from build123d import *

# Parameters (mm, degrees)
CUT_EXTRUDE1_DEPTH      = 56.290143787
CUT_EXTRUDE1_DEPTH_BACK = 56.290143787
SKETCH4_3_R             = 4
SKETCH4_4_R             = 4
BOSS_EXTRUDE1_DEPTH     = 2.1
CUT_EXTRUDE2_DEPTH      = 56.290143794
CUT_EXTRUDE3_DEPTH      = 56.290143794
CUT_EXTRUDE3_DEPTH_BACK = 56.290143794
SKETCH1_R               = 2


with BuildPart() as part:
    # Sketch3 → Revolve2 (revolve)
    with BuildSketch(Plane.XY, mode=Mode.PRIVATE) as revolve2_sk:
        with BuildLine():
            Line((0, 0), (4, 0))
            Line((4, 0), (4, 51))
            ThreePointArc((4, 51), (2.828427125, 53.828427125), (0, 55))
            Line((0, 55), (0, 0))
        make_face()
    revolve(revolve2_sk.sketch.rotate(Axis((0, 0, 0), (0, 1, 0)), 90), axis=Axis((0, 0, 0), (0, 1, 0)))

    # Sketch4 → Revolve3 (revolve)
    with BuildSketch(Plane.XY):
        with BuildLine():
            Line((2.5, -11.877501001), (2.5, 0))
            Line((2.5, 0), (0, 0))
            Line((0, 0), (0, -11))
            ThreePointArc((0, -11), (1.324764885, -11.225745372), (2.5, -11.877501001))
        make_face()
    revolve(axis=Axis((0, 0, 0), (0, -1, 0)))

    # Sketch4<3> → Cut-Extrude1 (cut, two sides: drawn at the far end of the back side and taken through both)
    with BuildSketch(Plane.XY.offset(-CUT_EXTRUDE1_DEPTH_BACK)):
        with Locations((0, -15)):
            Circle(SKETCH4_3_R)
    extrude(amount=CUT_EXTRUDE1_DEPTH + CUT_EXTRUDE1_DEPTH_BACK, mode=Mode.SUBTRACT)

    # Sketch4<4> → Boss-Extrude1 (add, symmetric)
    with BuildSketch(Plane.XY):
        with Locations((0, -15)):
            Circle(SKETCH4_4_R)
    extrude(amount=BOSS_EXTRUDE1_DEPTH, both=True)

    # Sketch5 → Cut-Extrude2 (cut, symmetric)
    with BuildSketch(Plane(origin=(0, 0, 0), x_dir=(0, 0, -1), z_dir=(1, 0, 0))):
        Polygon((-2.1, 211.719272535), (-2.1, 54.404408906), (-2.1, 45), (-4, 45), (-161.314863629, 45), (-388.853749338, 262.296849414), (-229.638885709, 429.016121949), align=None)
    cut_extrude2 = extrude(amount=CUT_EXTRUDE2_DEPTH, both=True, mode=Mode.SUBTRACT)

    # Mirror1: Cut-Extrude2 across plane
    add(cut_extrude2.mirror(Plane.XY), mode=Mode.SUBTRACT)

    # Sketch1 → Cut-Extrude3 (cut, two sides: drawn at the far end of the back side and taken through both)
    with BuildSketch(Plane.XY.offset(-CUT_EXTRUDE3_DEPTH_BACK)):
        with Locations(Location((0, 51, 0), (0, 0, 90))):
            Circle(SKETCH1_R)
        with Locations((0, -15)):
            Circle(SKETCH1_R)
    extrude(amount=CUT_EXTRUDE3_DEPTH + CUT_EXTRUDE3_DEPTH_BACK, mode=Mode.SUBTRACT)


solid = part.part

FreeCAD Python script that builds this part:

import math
import FreeCAD as App
import Part
import Sketcher
from FreeCAD import Vector
Q = App.Units.Quantity


def add_polygon(sketch, points):
    """Adds a closed chain of lines whose ends are joined by coincident constraints."""
    first, n = sketch.GeometryCount, len(points)
    for a, b in zip(points, points[1:] + points[:1]):
        sketch.addGeometry(Part.LineSegment(App.Vector(*a, 0), App.Vector(*b, 0)), False)
    for i in range(n):
        sketch.addConstraint(Sketcher.Constraint("Coincident", first + i, 2, first + (i + 1) % n, 1))

doc = App.newDocument("Part")
params = doc.addObject("Spreadsheet::Sheet", "Params")
for row, (alias, value) in enumerate([
    ("sketch1_radius", "4 mm"),
    ("sketch1_height", "51 mm"),
    ("revolution_angle", "360 deg"),
    ("sketch2_radius", "4 mm"),
    ("sketch2_height", "11 mm"),
    ("sketch2_width", "2.5 mm"),
    ("revolution2_angle", "360 deg"),
    ("sketch3_diameter", "8 mm"),
    ("sketch4_diameter", "8 mm"),
    ("pad1_length", "4.2 mm"),
    ("pocket2_length", "112.580288 mm"),
    ("sketch6_diameter", "4 mm"),
], start=1):
    params.set(f"A{row}", alias)
    params.set(f"B{row}", "=" + value)
    params.setAlias(f"B{row}", alias)

body = doc.addObject("PartDesign::Body", "Body")

# Sketch on XY plane
sketch1 = doc.addObject("Sketcher::SketchObject", "Sketch")
body.addObject(sketch1)
sketch1.AttachmentSupport = (doc.XY_Plane, [""])
sketch1.MapMode = "FlatFace"
sketch1.addGeometry([
    Part.LineSegment(Vector(0, 0, 0), Vector(4, 0, 0)),
    Part.LineSegment(Vector(4, 0, 0), Vector(4, 51, 0)),
    Part.ArcOfCircle(Part.Circle(Vector(0, 51, 0), Vector(0, 0, 1), 4), math.radians(0), math.radians(90)),
    Part.LineSegment(Vector(0, 55, 0), Vector(0, 0, 0)),
], False)
sketch1.addConstraint([
    Sketcher.Constraint("Coincident", 0, 2, 1, 1),
    Sketcher.Constraint("Tangent", 1, 2, 2, 1),
    Sketcher.Constraint("Coincident", 2, 2, 3, 1),
    Sketcher.Constraint("Coincident", 3, 2, 0, 1),
    Sketcher.Constraint("Horizontal", 0),
    Sketcher.Constraint("Vertical", 1),
    Sketcher.Constraint("Vertical", 3),
    Sketcher.Constraint("Coincident", 3, 2, -1, 1),
    Sketcher.Constraint("PointOnObject", 2, 3, -2),
    Sketcher.Constraint("Radius", 2, Q("4 mm")),
    Sketcher.Constraint("DistanceY", 1, 1, 1, 2, Q("51 mm")),
])
sketch1.setExpression("Constraints[9]", "Params.sketch1_radius")
sketch1.setExpression("Constraints[10]", "Params.sketch1_height")
revolution = doc.addObject("PartDesign::Revolution", "Revolution")
body.addObject(revolution)
revolution.Profile = sketch1
revolution.ReferenceAxis = (sketch1, ["V_Axis"])
revolution.setExpression("Angle", "Params.revolution_angle")

# Sketch on XY plane
sketch2 = doc.addObject("Sketcher::SketchObject", "Sketch001")
body.addObject(sketch2)
sketch2.AttachmentSupport = (doc.XY_Plane, [""])
sketch2.MapMode = "FlatFace"
sketch2.addGeometry([
    Part.LineSegment(Vector(2.5, -11.9, 0), Vector(2.5, 0, 0)),
    Part.LineSegment(Vector(2.5, 0, 0), Vector(0, 0, 0)),
    Part.LineSegment(Vector(0, 0, 0), Vector(0, -11, 0)),
    Part.ArcOfCircle(Part.Circle(Vector(0, -15, 0), Vector(0, 0, 1), 4), math.radians(51), math.radians(90)),
], False)
sketch2.addConstraint([
    Sketcher.Constraint("Coincident", 0, 2, 1, 1),
    Sketcher.Constraint("Coincident", 1, 2, 2, 1),
    Sketcher.Constraint("Coincident", 2, 2, 3, 2),
    Sketcher.Constraint("Coincident", 3, 1, 0, 1),
    Sketcher.Constraint("Vertical", 0),
    Sketcher.Constraint("Horizontal", 1),
    Sketcher.Constraint("Vertical", 2),
    Sketcher.Constraint("Coincident", 1, 2, -1, 1),
    Sketcher.Constraint("PointOnObject", 3, 3, -2),
    Sketcher.Constraint("Radius", 3, Q("4 mm")),
    Sketcher.Constraint("DistanceY", 2, 2, 2, 1, Q("11 mm")),
    Sketcher.Constraint("DistanceX", 1, 2, 1, 1, Q("2.5 mm")),
])
sketch2.setExpression("Constraints[9]", "Params.sketch2_radius")
sketch2.setExpression("Constraints[10]", "Params.sketch2_height")
sketch2.setExpression("Constraints[11]", "Params.sketch2_width")
revolution2 = doc.addObject("PartDesign::Revolution", "Revolution001")
body.addObject(revolution2)
revolution2.Profile = sketch2
revolution2.ReferenceAxis = (sketch2, ["V_Axis"])
revolution2.setExpression("Angle", "Params.revolution2_angle")

# Sketch on XY plane
sketch3 = doc.addObject("Sketcher::SketchObject", "Sketch002")
body.addObject(sketch3)
sketch3.AttachmentSupport = (doc.XY_Plane, [""])
sketch3.MapMode = "FlatFace"
sketch3.addGeometry(Part.Circle(Vector(0, -15, 0), Vector(0, 0, 1), 4), False)
sketch3.addConstraint([
    Sketcher.Constraint("PointOnObject", 0, 3, -2),
    Sketcher.Constraint("Diameter", 0, Q("8 mm")),
    Sketcher.Constraint("DistanceY", 0, 3, -1, 1, Q("15 mm")),
])
sketch3.setExpression("Constraints[1]", "Params.sketch3_diameter")
pocket1 = doc.addObject("PartDesign::Pocket", "Pocket")
body.addObject(pocket1)
pocket1.Profile = sketch3
pocket1.Type = "ThroughAll"
pocket1.Midplane = True

# Sketch on XY plane
sketch4 = doc.addObject("Sketcher::SketchObject", "Sketch003")
body.addObject(sketch4)
sketch4.AttachmentSupport = (doc.XY_Plane, [""])
sketch4.MapMode = "FlatFace"
sketch4.addGeometry(Part.Circle(Vector(0, -15, 0), Vector(0, 0, 1), 4), False)
sketch4.addConstraint([
    Sketcher.Constraint("PointOnObject", 0, 3, -2),
    Sketcher.Constraint("Diameter", 0, Q("8 mm")),
    Sketcher.Constraint("DistanceY", 0, 3, -1, 1, Q("15 mm")),
])
sketch4.setExpression("Constraints[1]", "Params.sketch4_diameter")
pad1 = doc.addObject("PartDesign::Pad", "Pad")
body.addObject(pad1)
pad1.Profile = sketch4
pad1.setExpression("Length", "Params.pad1_length")
pad1.Midplane = True

# Sketch on YZ plane
sketch5 = doc.addObject("Sketcher::SketchObject", "Sketch004")
body.addObject(sketch5)
sketch5.AttachmentSupport = (doc.YZ_Plane, [""])
sketch5.MapMode = "FlatFace"
add_polygon(sketch5, [(45, 2), (212, 2), (429, 230), (262, 389), (45, 161)])  # lines 0-4
sketch5.addConstraint([
    Sketcher.Constraint("Horizontal", 0),
    Sketcher.Constraint("Vertical", 4),
    Sketcher.Constraint("Perpendicular", 1, 2),
    Sketcher.Constraint("Perpendicular", 2, 3),
    Sketcher.Constraint("Equal", 1, 3),
    Sketcher.Constraint("DistanceX", -1, 1, 3, 2, Q("45 mm")),
    Sketcher.Constraint("DistanceY", -1, 1, 0, 2, Q("2.1 mm")),
    Sketcher.Constraint("Distance", 2, Q("230.531318 mm")),
    Sketcher.Constraint("DistanceX", 0, 1, 0, 2, Q("166.719273 mm")),
    Sketcher.Constraint("DistanceX", -1, 1, 1, 2, Q("429.016122 mm")),
])
pocket2 = doc.addObject("PartDesign::Pocket", "Pocket001")
body.addObject(pocket2)
pocket2.Profile = sketch5
pocket2.setExpression("Length", "Params.pocket2_length")
pocket2.Midplane = True
doc.recompute()

mirrored = doc.addObject("PartDesign::Mirrored", "Mirrored")
body.addObject(mirrored)
mirrored.Originals = [pocket2]
mirrored.MirrorPlane = (doc.XY_Plane, [""])
body.Tip = mirrored

# Sketch on XY plane
sketch6 = doc.addObject("Sketcher::SketchObject", "Sketch005")
body.addObject(sketch6)
sketch6.AttachmentSupport = (doc.XY_Plane, [""])
sketch6.MapMode = "FlatFace"
sketch6.addGeometry([
    Part.Circle(Vector(0, 51, 0), Vector(0, 0, 1), 2),
    Part.Circle(Vector(0, -15, 0), Vector(0, 0, 1), 2),
], False)
sketch6.addConstraint([
    Sketcher.Constraint("Equal", 0, 1),
    Sketcher.Constraint("PointOnObject", 0, 3, -2),
    Sketcher.Constraint("PointOnObject", 1, 3, -2),
    Sketcher.Constraint("Diameter", 0, Q("4 mm")),
    Sketcher.Constraint("DistanceY", -1, 1, 0, 3, Q("51 mm")),
    Sketcher.Constraint("DistanceY", 1, 3, -1, 1, Q("15 mm")),
])
sketch6.setExpression("Constraints[3]", "Params.sketch6_diameter")
pocket3 = doc.addObject("PartDesign::Pocket", "Pocket002")
body.addObject(pocket3)
pocket3.Profile = sketch6
pocket3.Type = "ThroughAll"
pocket3.Midplane = True

doc.recompute()
